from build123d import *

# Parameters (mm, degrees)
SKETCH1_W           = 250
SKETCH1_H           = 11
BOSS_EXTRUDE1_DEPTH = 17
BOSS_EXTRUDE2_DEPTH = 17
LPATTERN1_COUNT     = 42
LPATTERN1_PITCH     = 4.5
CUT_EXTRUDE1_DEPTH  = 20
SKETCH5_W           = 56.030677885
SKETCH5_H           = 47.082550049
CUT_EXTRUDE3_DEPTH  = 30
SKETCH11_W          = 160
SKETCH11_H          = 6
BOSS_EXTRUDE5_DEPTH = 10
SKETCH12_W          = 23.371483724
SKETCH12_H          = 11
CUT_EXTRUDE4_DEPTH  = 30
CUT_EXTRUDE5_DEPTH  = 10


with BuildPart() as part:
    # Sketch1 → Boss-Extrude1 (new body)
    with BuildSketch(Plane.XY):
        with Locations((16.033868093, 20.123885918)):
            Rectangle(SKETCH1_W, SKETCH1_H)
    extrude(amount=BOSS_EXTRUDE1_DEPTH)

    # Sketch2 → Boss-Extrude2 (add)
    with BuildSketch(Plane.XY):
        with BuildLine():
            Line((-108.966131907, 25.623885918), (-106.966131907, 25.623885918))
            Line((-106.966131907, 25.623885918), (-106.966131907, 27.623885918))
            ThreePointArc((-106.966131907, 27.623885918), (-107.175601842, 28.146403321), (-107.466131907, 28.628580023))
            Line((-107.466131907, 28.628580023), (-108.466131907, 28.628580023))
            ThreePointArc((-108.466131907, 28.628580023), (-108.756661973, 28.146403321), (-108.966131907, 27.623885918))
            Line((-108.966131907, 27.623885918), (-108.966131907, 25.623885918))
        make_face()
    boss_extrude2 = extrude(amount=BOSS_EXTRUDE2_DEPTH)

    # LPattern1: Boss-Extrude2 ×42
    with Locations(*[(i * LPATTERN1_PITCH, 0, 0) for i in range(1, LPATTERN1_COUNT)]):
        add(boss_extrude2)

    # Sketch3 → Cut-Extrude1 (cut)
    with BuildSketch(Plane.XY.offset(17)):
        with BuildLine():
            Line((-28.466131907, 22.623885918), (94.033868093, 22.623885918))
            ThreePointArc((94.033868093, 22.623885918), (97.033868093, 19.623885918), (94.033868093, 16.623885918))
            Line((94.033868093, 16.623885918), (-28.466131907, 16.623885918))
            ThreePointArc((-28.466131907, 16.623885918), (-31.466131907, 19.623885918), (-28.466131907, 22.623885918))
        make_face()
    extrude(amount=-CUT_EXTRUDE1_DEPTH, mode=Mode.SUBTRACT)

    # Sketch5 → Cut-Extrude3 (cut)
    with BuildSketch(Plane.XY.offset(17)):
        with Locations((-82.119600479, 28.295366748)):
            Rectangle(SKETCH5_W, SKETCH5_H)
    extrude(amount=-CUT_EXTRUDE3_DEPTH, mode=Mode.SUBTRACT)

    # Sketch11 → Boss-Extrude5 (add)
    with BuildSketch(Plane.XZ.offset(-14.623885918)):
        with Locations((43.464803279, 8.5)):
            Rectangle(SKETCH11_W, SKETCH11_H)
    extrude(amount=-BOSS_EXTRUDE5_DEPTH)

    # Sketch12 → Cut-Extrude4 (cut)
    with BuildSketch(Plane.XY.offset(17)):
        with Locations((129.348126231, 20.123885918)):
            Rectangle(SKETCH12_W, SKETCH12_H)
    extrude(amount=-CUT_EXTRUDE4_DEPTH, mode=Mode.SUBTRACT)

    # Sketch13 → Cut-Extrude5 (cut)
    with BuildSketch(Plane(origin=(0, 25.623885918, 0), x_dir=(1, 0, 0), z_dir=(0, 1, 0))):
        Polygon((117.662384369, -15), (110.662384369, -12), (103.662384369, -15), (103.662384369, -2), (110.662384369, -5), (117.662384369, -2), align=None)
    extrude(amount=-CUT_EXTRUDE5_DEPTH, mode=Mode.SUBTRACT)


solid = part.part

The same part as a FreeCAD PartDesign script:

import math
import FreeCAD as App
import Part
import Sketcher

V = App.Vector


def add_polygon(sketch, points):
    """Adds a closed chain of lines whose ends are joined by coincident constraints."""
    first, n = sketch.GeometryCount, len(points)
    for a, b in zip(points, points[1:] + points[:1]):
        sketch.addGeometry(Part.LineSegment(App.Vector(*a, 0), App.Vector(*b, 0)), False)
    for i in range(n):
        sketch.addConstraint(Sketcher.Constraint("Coincident", first + i, 2, first + (i + 1) % n, 1))

doc = App.newDocument("Part")
params = doc.addObject("Spreadsheet::Sheet", "Params")
for row, (alias, value) in enumerate([
    ("sketch1_width", "250 mm"),
    ("sketch1_height", "11 mm"),
    ("pad1_length", "17 mm"),
    ("sketch2_radius", "3.5 mm"),
    ("sketch2_width", "2 mm"),
    ("sketch2_width2", "1 mm"),
    ("pad2_length", "17 mm"),
    ("linearpattern_pitch", "4.5 mm"),
    ("sketch3_radius", "3 mm"),
    ("sketch3_width", "122.5 mm"),
    ("pocket1_length", "20 mm"),
    ("pocket2_length", "30 mm"),
    ("sketch5_width", "160 mm"),
    ("sketch5_height", "6 mm"),
    ("pad3_length", "10 mm"),
    ("sketch6_height", "11 mm"),
    ("pocket3_length", "30 mm"),
    ("sketch7_height", "13 mm"),
    ("pocket4_length", "10 mm"),
], start=1):
    params.set(f"A{row}", alias)
    params.set(f"B{row}", "=" + value)
    params.setAlias(f"B{row}", alias)

body = doc.addObject("PartDesign::Body", "Body")

# Sketch on XY plane
sketch1 = body.newObject("Sketcher::SketchObject", "Sketch")
sketch1.AttachmentSupport = (doc.getObject("XY_Plane"), [""])
sketch1.MapMode = "FlatFace"
add_polygon(sketch1, [(-108.966132, 25.623886), (-108.966132, 14.623886), (141.033868, 14.623886), (141.033868, 25.623886)])  # lines 0-3
sketch1.addConstraint([
    Sketcher.Constraint("Vertical", 0),
    Sketcher.Constraint("Horizontal", 1),
    Sketcher.Constraint("Vertical", 2),
    Sketcher.Constraint("Horizontal", 3),
    Sketcher.Constraint("DistanceX", 1, 1, 1, 2, 250.0),
    Sketcher.Constraint("DistanceY", 0, 2, 0, 1, 11.0),
    Sketcher.Constraint("DistanceX", 0, 2, -1, 1, 108.966132),
    Sketcher.Constraint("DistanceY", -1, 1, 0, 2, 14.623886),
])
sketch1.setExpression("Constraints[8]", "Params.sketch1_width")
sketch1.setExpression("Constraints[9]", "Params.sketch1_height")
pad1 = body.newObject("PartDesign::Pad", "Pad")
pad1.Profile = sketch1
pad1.setExpression("Length", "Params.pad1_length")

# Sketch on XY plane
sketch2 = body.newObject("Sketcher::SketchObject", "Sketch001")
sketch2.AttachmentSupport = (doc.getObject("XY_Plane"), [""])
sketch2.MapMode = "FlatFace"
sketch2.addGeometry([
    Part.LineSegment(V(-108.966132, 25.623886, 0), V(-106.966132, 25.623886, 0)),  # 0
    Part.LineSegment(V(-106.966132, 25.623886, 0), V(-106.966132, 27.623886, 0)),  # 1
    Part.ArcOfCircle(Part.Circle(V(-110.30902, 26.587014, 0), V(0, 0, 1), 3.5), math.radians(17.232448), math.radians(35.683298)),  # 2
    Part.LineSegment(V(-107.466132, 28.62858, 0), V(-108.466132, 28.62858, 0)),  # 3
    Part.ArcOfCircle(Part.Circle(V(-105.623244, 26.587014, 0), V(0, 0, 1), 3.5), math.radians(144.316702), math.radians(162.767552)),  # 4
    Part.LineSegment(V(-108.966132, 27.623886, 0), V(-108.966132, 25.623886, 0)),  # 5
], False)
sketch2.addConstraint([
    Sketcher.Constraint("Coincident", 0, 2, 1, 1),
    Sketcher.Constraint("Coincident", 1, 2, 2, 1),
    Sketcher.Constraint("Coincident", 2, 2, 3, 1),
    Sketcher.Constraint("Coincident", 3, 2, 4, 1),
    Sketcher.Constraint("Coincident", 4, 2, 5, 1),
    Sketcher.Constraint("Coincident", 5, 2, 0, 1),
    Sketcher.Constraint("Horizontal", 0),
    Sketcher.Constraint("Vertical", 1),
    Sketcher.Constraint("Horizontal", 3),
    Sketcher.Constraint("Vertical", 5),
    Sketcher.Constraint("Equal", 2, 4),
    Sketcher.Constraint("Horizontal", 2, 3, 4, 3),
    Sketcher.Constraint("Horizontal", 1, 2, 4, 2),
    Sketcher.Constraint("Equal", 0, 1),
    Sketcher.Constraint("Radius", 2, 3.5),
    Sketcher.Constraint("DistanceX", 0, 1, 0, 2, 2.0),
    Sketcher.Constraint("DistanceX", 3, 2, 3, 1, 1.0),
    Sketcher.Constraint("DistanceX", 2, 3, -1, 1, 110.30902),
    Sketcher.Constraint("DistanceX", 0, 2, -1, 1, 106.966132),
    Sketcher.Constraint("DistanceY", -1, 1, 2, 2, 28.62858),
])
sketch2.setExpression("Constraints[14]", "Params.sketch2_radius")
sketch2.setExpression("Constraints[15]", "Params.sketch2_width")
sketch2.setExpression("Constraints[16]", "Params.sketch2_width2")
pad2 = body.newObject("PartDesign::Pad", "Pad001")
pad2.Profile = sketch2
pad2.setExpression("Length", "Params.pad2_length")
doc.recompute()

linearpattern = body.newObject("PartDesign::LinearPattern", "LinearPattern")
linearpattern.Originals = [pad2]
linearpattern.Direction = (doc.getObject("X_Axis"), [""])
linearpattern.Mode = "offset"
linearpattern.setExpression("Offset", "Params.linearpattern_pitch")
linearpattern.Occurrences = 42
body.Tip = linearpattern

# Sketch on XY plane
sketch3 = body.newObject("Sketcher::SketchObject", "Sketch002")
sketch3.AttachmentSupport = (doc.getObject("XY_Plane"), [""])
sketch3.MapMode = "FlatFace"
sketch3.AttachmentOffset = App.Placement(V(0, 0, 17), App.Rotation())
sketch3.addGeometry([
    Part.LineSegment(V(94.033868, 22.623886, 0), V(-28.466132, 22.623886, 0)),
    Part.ArcOfCircle(Part.Circle(V(-28.466132, 19.623886, 0), V(0, 0, 1), 3), math.radians(90), math.radians(270)),
    Part.LineSegment(V(-28.466132, 16.623886, 0), V(94.033868, 16.623886, 0)),
    Part.ArcOfCircle(Part.Circle(V(94.033868, 19.623886, 0), V(0, 0, 1), 3), math.radians(-90), math.radians(90)),
], False)
sketch3.addConstraint([
    Sketcher.Constraint("Tangent", 0, 2, 1, 1),
    Sketcher.Constraint("Tangent", 1, 2, 2, 1),
    Sketcher.Constraint("Tangent", 2, 2, 3, 1),
    Sketcher.Constraint("Tangent", 3, 2, 0, 1),
    Sketcher.Constraint("Horizontal", 0),
    Sketcher.Constraint("Horizontal", 2),
    Sketcher.Constraint("Radius", 1, 3.0),
    Sketcher.Constraint("DistanceX", 0, 2, 0, 1, 122.5),
    Sketcher.Constraint("DistanceX", 1, 3, -1, 1, 28.466132),
    Sketcher.Constraint("DistanceY", -1, 1, 1, 3, 19.623886),
])
sketch3.setExpression("Constraints[6]", "Params.sketch3_radius")
sketch3.setExpression("Constraints[7]", "Params.sketch3_width")
pocket1 = body.newObject("PartDesign::Pocket", "Pocket")
pocket1.Profile = sketch3
pocket1.setExpression("Length", "Params.pocket1_length")

# Sketch on XY plane
sketch4 = body.newObject("Sketcher::SketchObject", "Sketch003")
sketch4.AttachmentSupport = (doc.getObject("XY_Plane"), [""])
sketch4.MapMode = "FlatFace"
sketch4.AttachmentOffset = App.Placement(V(0, 0, 17), App.Rotation())
add_polygon(sketch4, [(-110.134939, 51.836642), (-110.134939, 4.754092), (-54.104262, 4.754092), (-54.104262, 51.836642)])  # lines 0-3
sketch4.addConstraint([
    Sketcher.Constraint("Vertical", 0),
    Sketcher.Constraint("Horizontal", 1),
    Sketcher.Constraint("Vertical", 2),
    Sketcher.Constraint("Horizontal", 3),
    Sketcher.Constraint("DistanceY", 0, 2, 0, 1, 47.08255),
    Sketcher.Constraint("DistanceX", 1, 1, 1, 2, 56.030678),
    Sketcher.Constraint("DistanceX", 0, 2, -1, 1, 110.134939),
    Sketcher.Constraint("DistanceY", -1, 1, 0, 2, 4.754092),
])
pocket2 = body.newObject("PartDesign::Pocket", "Pocket001")
pocket2.Profile = sketch4
pocket2.setExpression("Length", "Params.pocket2_length")

# Sketch on XZ plane
sketch5 = body.newObject("Sketcher::SketchObject", "Sketch004")
sketch5.AttachmentSupport = (doc.getObject("XZ_Plane"), [""])
sketch5.MapMode = "FlatFace"
sketch5.AttachmentOffset = App.Placement(V(0, 0, -14.623886), App.Rotation())
add_polygon(sketch5, [(-36.535197, 11.5), (-36.535197, 5.5), (123.464803, 5.5), (123.464803, 11.5)])  # lines 0-3
sketch5.addConstraint([
    Sketcher.Constraint("Vertical", 0),
    Sketcher.Constraint("Horizontal", 1),
    Sketcher.Constraint("Vertical", 2),
    Sketcher.Constraint("Horizontal", 3),
    Sketcher.Constraint("DistanceX", 1, 1, 1, 2, 160.0),
    Sketcher.Constraint("DistanceY", 0, 2, 0, 1, 6.0),
    Sketcher.Constraint("DistanceY", -1, 1, 0, 2, 5.5),
    Sketcher.Constraint("DistanceX", 0, 2, -1, 1, 36.535197),
])
sketch5.setExpression("Constraints[8]", "Params.sketch5_width")
sketch5.setExpression("Constraints[9]", "Params.sketch5_height")
pad3 = body.newObject("PartDesign::Pad", "Pad002")
pad3.Profile = sketch5
pad3.setExpression("Length", "Params.pad3_length")
pad3.Reversed = True

# Sketch on XY plane
sketch6 = body.newObject("Sketcher::SketchObject", "Sketch005")
sketch6.AttachmentSupport = (doc.getObject("XY_Plane"), [""])
sketch6.MapMode = "FlatFace"
sketch6.AttachmentOffset = App.Placement(V(0, 0, 17), App.Rotation())
add_polygon(sketch6, [(117.662384, 25.623886), (117.662384, 14.623886), (141.033868, 14.623886), (141.033868, 25.623886)])  # lines 0-3
sketch6.addConstraint([
    Sketcher.Constraint("Vertical", 0),
    Sketcher.Constraint("Horizontal", 1),
    Sketcher.Constraint("Vertical", 2),
    Sketcher.Constraint("Horizontal", 3),
    Sketcher.Constraint("DistanceY", 0, 2, 0, 1, 11.0),
    Sketcher.Constraint("DistanceX", 1, 1, 1, 2, 23.371484),
    Sketcher.Constraint("DistanceX", -1, 1, 1, 2, 141.033868),
    Sketcher.Constraint("DistanceY", -1, 1, 0, 2, 14.623886),
])
sketch6.setExpression("Constraints[8]", "Params.sketch6_height")
pocket3 = body.newObject("PartDesign::Pocket", "Pocket002")
pocket3.Profile = sketch6
pocket3.setExpression("Length", "Params.pocket3_length")

# Sketch on XZ plane
sketch7 = body.newObject("Sketcher::SketchObject", "Sketch006")
sketch7.AttachmentSupport = (doc.getObject("XZ_Plane"), [""])
sketch7.MapMode = "FlatFace"
sketch7.AttachmentOffset = App.Placement(V(0, 0, -25.623886), App.Rotation())
add_polygon(sketch7, [(110.662384, 12), (117.662384, 15), (117.662384, 2), (110.662384, 5), (103.662384, 2), (103.662384, 15)])  # lines 0-5
sketch7.addConstraint([
    Sketcher.Constraint("Vertical", 1),
    Sketcher.Constraint("Vertical", 4),
    Sketcher.Constraint("Parallel", 0, 3),
    Sketcher.Constraint("Parallel", 2, 5),
    Sketcher.Constraint("Horizontal", 1, 2, 3, 2),
    Sketcher.Constraint("Horizontal", 0, 2, 4, 2),
    Sketcher.Constraint("Vertical", 2, 2, 5, 2),
    Sketcher.Constraint("DistanceY", 1, 2, 1, 1, 13.0),
    Sketcher.Constraint("DistanceY", -1, 1, 0, 2, 15.0),
    Sketcher.Constraint("DistanceY", -1, 1, 2, 2, 5.0),
    Sketcher.Constraint("DistanceX", 2, 2, 1, 2, 7.0),
    Sketcher.Constraint("DistanceX", -1, 1, 0, 2, 117.662384),
])
sketch7.setExpression("Constraints[13]", "Params.sketch7_height")
pocket4 = body.newObject("PartDesign::Pocket", "Pocket003")
pocket4.Profile = sketch7
pocket4.setExpression("Length", "Params.pocket4_length")
pocket4.Reversed = True

doc.recompute()
